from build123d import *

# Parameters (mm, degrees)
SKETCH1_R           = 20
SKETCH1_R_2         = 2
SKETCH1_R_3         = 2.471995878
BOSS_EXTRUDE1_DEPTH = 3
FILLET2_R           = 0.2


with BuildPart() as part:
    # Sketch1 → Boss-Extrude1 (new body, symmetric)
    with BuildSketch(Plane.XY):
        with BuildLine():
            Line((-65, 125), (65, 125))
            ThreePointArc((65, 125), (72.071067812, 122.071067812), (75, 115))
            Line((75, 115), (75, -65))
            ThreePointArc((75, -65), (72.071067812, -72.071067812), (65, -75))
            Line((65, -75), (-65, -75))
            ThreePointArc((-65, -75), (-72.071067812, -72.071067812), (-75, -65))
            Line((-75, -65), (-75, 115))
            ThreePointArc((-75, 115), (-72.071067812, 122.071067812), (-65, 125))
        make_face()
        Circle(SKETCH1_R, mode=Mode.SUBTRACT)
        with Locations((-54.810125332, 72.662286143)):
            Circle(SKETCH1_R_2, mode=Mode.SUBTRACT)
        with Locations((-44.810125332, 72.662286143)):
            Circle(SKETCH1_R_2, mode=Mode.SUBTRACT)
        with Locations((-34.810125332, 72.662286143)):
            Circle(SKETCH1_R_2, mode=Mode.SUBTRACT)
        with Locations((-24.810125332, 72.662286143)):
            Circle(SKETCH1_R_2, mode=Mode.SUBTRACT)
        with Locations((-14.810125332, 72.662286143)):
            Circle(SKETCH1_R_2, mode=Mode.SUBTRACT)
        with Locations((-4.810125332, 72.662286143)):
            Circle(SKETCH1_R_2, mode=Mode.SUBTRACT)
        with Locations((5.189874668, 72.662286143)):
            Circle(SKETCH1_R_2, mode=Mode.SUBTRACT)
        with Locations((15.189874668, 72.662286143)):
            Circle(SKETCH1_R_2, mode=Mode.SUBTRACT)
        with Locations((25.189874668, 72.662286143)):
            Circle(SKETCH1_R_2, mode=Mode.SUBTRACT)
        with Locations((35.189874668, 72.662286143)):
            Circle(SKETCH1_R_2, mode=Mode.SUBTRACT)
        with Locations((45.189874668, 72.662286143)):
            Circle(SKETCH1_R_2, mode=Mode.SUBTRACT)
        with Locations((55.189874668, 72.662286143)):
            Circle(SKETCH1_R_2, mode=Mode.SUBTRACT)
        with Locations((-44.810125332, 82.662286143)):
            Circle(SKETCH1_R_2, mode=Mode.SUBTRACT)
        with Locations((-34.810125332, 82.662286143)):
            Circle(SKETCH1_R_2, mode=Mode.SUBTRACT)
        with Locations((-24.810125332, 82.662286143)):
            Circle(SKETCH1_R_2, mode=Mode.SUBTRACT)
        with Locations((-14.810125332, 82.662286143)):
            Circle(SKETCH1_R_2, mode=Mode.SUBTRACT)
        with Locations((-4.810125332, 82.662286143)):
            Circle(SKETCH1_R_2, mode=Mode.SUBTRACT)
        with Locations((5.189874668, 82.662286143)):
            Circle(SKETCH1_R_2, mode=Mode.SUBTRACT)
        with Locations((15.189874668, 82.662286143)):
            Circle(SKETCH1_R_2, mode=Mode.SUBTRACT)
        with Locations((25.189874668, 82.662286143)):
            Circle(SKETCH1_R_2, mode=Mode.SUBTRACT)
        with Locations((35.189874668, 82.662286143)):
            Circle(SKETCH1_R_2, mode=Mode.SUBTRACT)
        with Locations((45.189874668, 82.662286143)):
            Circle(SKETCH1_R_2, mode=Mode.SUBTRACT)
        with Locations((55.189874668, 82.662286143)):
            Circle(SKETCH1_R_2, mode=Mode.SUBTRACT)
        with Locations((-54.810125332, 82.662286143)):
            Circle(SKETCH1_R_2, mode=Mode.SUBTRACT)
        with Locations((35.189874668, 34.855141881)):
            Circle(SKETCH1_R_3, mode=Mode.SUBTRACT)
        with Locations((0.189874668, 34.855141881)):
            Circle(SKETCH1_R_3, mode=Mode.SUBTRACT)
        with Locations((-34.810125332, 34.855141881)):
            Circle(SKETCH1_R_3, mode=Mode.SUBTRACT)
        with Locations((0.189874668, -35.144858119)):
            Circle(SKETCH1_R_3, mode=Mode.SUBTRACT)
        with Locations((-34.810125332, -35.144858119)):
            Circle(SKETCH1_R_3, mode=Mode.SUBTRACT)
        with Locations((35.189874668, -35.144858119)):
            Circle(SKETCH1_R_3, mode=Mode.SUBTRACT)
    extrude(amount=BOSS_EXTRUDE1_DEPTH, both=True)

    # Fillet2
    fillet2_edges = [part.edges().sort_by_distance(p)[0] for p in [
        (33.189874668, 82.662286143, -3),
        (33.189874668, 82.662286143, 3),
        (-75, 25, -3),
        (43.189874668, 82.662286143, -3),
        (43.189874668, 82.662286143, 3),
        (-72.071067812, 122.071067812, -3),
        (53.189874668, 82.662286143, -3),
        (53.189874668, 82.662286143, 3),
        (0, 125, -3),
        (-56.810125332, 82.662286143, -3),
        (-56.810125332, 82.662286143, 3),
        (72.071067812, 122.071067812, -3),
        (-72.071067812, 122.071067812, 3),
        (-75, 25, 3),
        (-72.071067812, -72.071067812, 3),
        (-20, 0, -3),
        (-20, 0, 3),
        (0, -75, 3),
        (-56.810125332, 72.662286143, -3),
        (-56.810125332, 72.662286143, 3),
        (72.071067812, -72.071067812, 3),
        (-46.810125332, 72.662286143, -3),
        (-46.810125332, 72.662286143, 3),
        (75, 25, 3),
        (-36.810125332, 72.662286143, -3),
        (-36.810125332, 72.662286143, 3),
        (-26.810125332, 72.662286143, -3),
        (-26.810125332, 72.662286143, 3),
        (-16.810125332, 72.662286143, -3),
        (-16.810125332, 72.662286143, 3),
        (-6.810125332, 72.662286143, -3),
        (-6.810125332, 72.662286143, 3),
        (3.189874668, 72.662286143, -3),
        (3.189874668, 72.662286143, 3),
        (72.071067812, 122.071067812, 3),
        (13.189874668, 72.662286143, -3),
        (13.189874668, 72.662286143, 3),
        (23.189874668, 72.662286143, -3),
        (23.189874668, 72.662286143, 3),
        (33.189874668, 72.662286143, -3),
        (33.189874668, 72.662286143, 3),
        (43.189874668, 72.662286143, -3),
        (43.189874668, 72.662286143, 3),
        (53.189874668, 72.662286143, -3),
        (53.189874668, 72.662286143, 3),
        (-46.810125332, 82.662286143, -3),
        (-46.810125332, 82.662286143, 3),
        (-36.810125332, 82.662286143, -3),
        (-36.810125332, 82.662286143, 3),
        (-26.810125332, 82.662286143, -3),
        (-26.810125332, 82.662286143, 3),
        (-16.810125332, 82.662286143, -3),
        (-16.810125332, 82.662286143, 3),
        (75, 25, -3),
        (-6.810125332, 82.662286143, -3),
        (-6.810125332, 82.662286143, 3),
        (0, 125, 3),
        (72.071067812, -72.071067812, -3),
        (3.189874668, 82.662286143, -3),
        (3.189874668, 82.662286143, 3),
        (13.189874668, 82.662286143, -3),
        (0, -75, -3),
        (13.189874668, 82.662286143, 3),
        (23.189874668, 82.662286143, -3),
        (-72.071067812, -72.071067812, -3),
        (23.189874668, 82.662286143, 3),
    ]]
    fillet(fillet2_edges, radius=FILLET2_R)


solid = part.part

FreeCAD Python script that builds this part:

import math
import FreeCAD as App
import Part
import Sketcher
from FreeCAD import Vector
Q = App.Units.Quantity


def edges_at(feature, points):
    """Names of the edges that pass closest to the given points."""
    edges = feature.Shape.Edges
    near = lambda p: min(range(len(edges)), key=lambda i: edges[i].distToShape(Part.Vertex(*p))[0])
    return sorted({f"Edge{near(p) + 1}" for p in points})

doc = App.newDocument("Part")
body = doc.addObject("PartDesign::Body", "Body")

# Sketch on XY plane
sketch1 = body.newObject("Sketcher::SketchObject", "Sketch")
sketch1.AttachmentSupport = (doc.getObject("XY_Plane"), [""])
sketch1.MapMode = "FlatFace"
sketch1.addGeometry(Part.LineSegment(Vector(65, 125, 0), Vector(-65, 125, 0)), False)
sketch1.addGeometry(Part.ArcOfCircle(Part.Circle(Vector(-65, 115, 0), Vector(0, 0, 1), 10), math.radians(90), math.radians(180)), False)
sketch1.addGeometry(Part.LineSegment(Vector(-75, 115, 0), Vector(-75, -65, 0)), False)
sketch1.addGeometry(Part.ArcOfCircle(Part.Circle(Vector(-65, -65, 0), Vector(0, 0, 1), 10), math.radians(180), math.radians(270)), False)
sketch1.addGeometry(Part.LineSegment(Vector(-65, -75, 0), Vector(65, -75, 0)), False)
sketch1.addGeometry(Part.ArcOfCircle(Part.Circle(Vector(65, -65, 0), Vector(0, 0, 1), 10), math.radians(-90), math.radians(0)), False)
sketch1.addGeometry(Part.LineSegment(Vector(75, -65, 0), Vector(75, 115, 0)), False)
sketch1.addGeometry(Part.ArcOfCircle(Part.Circle(Vector(65, 115, 0), Vector(0, 0, 1), 10), math.radians(0), math.radians(90)), False)
sketch1.addGeometry(Part.Circle(Vector(35.2, -35.1, 0), Vector(0, 0, 1), 2.5), False)
sketch1.addGeometry(Part.Circle(Vector(0.2, -35.1, 0), Vector(0, 0, 1), 2.5), False)
sketch1.addGeometry(Part.Circle(Vector(-34.8, -35.1, 0), Vector(0, 0, 1), 2.5), False)
sketch1.addGeometry(Part.Circle(Vector(0, 0, 0), Vector(0, 0, 1), 20), False)
sketch1.addGeometry(Part.Circle(Vector(35.2, 34.9, 0), Vector(0, 0, 1), 2.5), False)
sketch1.addGeometry(Part.Circle(Vector(55.2, 72.7, 0), Vector(0, 0, 1), 2), False)
sketch1.addGeometry(Part.Circle(Vector(45.2, 72.7, 0), Vector(0, 0, 1), 2), False)
sketch1.addGeometry(Part.Circle(Vector(55.2, 82.7, 0), Vector(0, 0, 1), 2), False)
sketch1.addGeometry(Part.Circle(Vector(45.2, 82.7, 0), Vector(0, 0, 1), 2), False)
sketch1.addGeometry(Part.Circle(Vector(35.2, 72.7, 0), Vector(0, 0, 1), 2), False)
sketch1.addGeometry(Part.Circle(Vector(35.2, 82.7, 0), Vector(0, 0, 1), 2), False)
sketch1.addGeometry(Part.Circle(Vector(25.2, 72.7, 0), Vector(0, 0, 1), 2), False)
sketch1.addGeometry(Part.Circle(Vector(15.2, 72.7, 0), Vector(0, 0, 1), 2), False)
sketch1.addGeometry(Part.Circle(Vector(25.2, 82.7, 0), Vector(0, 0, 1), 2), False)
sketch1.addGeometry(Part.Circle(Vector(15.2, 82.7, 0), Vector(0, 0, 1), 2), False)
sketch1.addGeometry(Part.Circle(Vector(5.2, 72.7, 0), Vector(0, 0, 1), 2), False)
sketch1.addGeometry(Part.Circle(Vector(5.2, 82.7, 0), Vector(0, 0, 1), 2), False)
sketch1.addGeometry(Part.Circle(Vector(0.2, 34.9, 0), Vector(0, 0, 1), 2.5), False)
sketch1.addGeometry(Part.Circle(Vector(-34.8, 34.9, 0), Vector(0, 0, 1), 2.5), False)
sketch1.addGeometry(Part.Circle(Vector(-4.8, 72.7, 0), Vector(0, 0, 1), 2), False)
sketch1.addGeometry(Part.Circle(Vector(-4.8, 82.7, 0), Vector(0, 0, 1), 2), False)
sketch1.addGeometry(Part.Circle(Vector(-14.8, 72.7, 0), Vector(0, 0, 1), 2), False)
sketch1.addGeometry(Part.Circle(Vector(-24.8, 72.7, 0), Vector(0, 0, 1), 2), False)
sketch1.addGeometry(Part.Circle(Vector(-14.8, 82.7, 0), Vector(0, 0, 1), 2), False)
sketch1.addGeometry(Part.Circle(Vector(-24.8, 82.7, 0), Vector(0, 0, 1), 2), False)
sketch1.addGeometry(Part.Circle(Vector(-34.8, 72.7, 0), Vector(0, 0, 1), 2), False)
sketch1.addGeometry(Part.Circle(Vector(-34.8, 82.7, 0), Vector(0, 0, 1), 2), False)
sketch1.addGeometry(Part.Circle(Vector(-44.8, 72.7, 0), Vector(0, 0, 1), 2), False)
sketch1.addGeometry(Part.Circle(Vector(-54.8, 72.7, 0), Vector(0, 0, 1), 2), False)
sketch1.addGeometry(Part.Circle(Vector(-44.8, 82.7, 0), Vector(0, 0, 1), 2), False)
sketch1.addGeometry(Part.Circle(Vector(-54.8, 82.7, 0), Vector(0, 0, 1), 2), False)
sketch1.addConstraint(Sketcher.Constraint("Tangent", 0, 2, 1, 1))
sketch1.addConstraint(Sketcher.Constraint("Tangent", 1, 2, 2, 1))
sketch1.addConstraint(Sketcher.Constraint("Tangent", 2, 2, 3, 1))
sketch1.addConstraint(Sketcher.Constraint("Tangent", 3, 2, 4, 1))
sketch1.addConstraint(Sketcher.Constraint("Tangent", 4, 2, 5, 1))
sketch1.addConstraint(Sketcher.Constraint("Tangent", 5, 2, 6, 1))
sketch1.addConstraint(Sketcher.Constraint("Tangent", 6, 2, 7, 1))
sketch1.addConstraint(Sketcher.Constraint("Tangent", 7, 2, 0, 1))
sketch1.addConstraint(Sketcher.Constraint("Horizontal", 0))
sketch1.addConstraint(Sketcher.Constraint("Vertical", 2))
sketch1.addConstraint(Sketcher.Constraint("Horizontal", 4))
sketch1.addConstraint(Sketcher.Constraint("Vertical", 6))
sketch1.addConstraint(Sketcher.Constraint("Coincident", 11, 3, -1, 1))
sketch1.addConstraint(Sketcher.Constraint("Equal", 1, 3))
sketch1.addConstraint(Sketcher.Constraint("Equal", 3, 5))
sketch1.addConstraint(Sketcher.Constraint("Equal", 5, 7))
sketch1.addConstraint(Sketcher.Constraint("Equal", 8, 9))
sketch1.addConstraint(Sketcher.Constraint("Equal", 9, 10))
sketch1.addConstraint(Sketcher.Constraint("Equal", 10, 12))
sketch1.addConstraint(Sketcher.Constraint("Equal", 13, 14))
sketch1.addConstraint(Sketcher.Constraint("Equal", 14, 15))
sketch1.addConstraint(Sketcher.Constraint("Equal", 15, 16))
sketch1.addConstraint(Sketcher.Constraint("Equal", 16, 17))
sketch1.addConstraint(Sketcher.Constraint("Equal", 17, 18))
sketch1.addConstraint(Sketcher.Constraint("Equal", 18, 19))
sketch1.addConstraint(Sketcher.Constraint("Equal", 19, 20))
sketch1.addConstraint(Sketcher.Constraint("Equal", 20, 21))
sketch1.addConstraint(Sketcher.Constraint("Equal", 21, 22))
sketch1.addConstraint(Sketcher.Constraint("Equal", 22, 23))
sketch1.addConstraint(Sketcher.Constraint("Equal", 23, 24))
sketch1.addConstraint(Sketcher.Constraint("Equal", 12, 25))
sketch1.addConstraint(Sketcher.Constraint("Equal", 25, 26))
sketch1.addConstraint(Sketcher.Constraint("Equal", 24, 27))
sketch1.addConstraint(Sketcher.Constraint("Equal", 27, 28))
sketch1.addConstraint(Sketcher.Constraint("Equal", 28, 29))
sketch1.addConstraint(Sketcher.Constraint("Equal", 29, 30))
sketch1.addConstraint(Sketcher.Constraint("Equal", 30, 31))
sketch1.addConstraint(Sketcher.Constraint("Equal", 31, 32))
sketch1.addConstraint(Sketcher.Constraint("Equal", 32, 33))
sketch1.addConstraint(Sketcher.Constraint("Equal", 33, 34))
sketch1.addConstraint(Sketcher.Constraint("Equal", 34, 35))
sketch1.addConstraint(Sketcher.Constraint("Equal", 35, 36))
sketch1.addConstraint(Sketcher.Constraint("Equal", 36, 37))
sketch1.addConstraint(Sketcher.Constraint("Equal", 37, 38))
sketch1.addConstraint(Sketcher.Constraint("Horizontal", 8, 3, 9, 3))
sketch1.addConstraint(Sketcher.Constraint("Horizontal", 9, 3, 10, 3))
sketch1.addConstraint(Sketcher.Constraint("Horizontal", 13, 3, 14, 3))
sketch1.addConstraint(Sketcher.Constraint("Horizontal", 15, 3, 16, 3))
sketch1.addConstraint(Sketcher.Constraint("Horizontal", 14, 3, 17, 3))
sketch1.addConstraint(Sketcher.Constraint("Horizontal", 16, 3, 18, 3))
sketch1.addConstraint(Sketcher.Constraint("Horizontal", 17, 3, 19, 3))
sketch1.addConstraint(Sketcher.Constraint("Horizontal", 19, 3, 20, 3))
sketch1.addConstraint(Sketcher.Constraint("Horizontal", 18, 3, 21, 3))
sketch1.addConstraint(Sketcher.Constraint("Horizontal", 21, 3, 22, 3))
sketch1.addConstraint(Sketcher.Constraint("Horizontal", 20, 3, 23, 3))
sketch1.addConstraint(Sketcher.Constraint("Horizontal", 22, 3, 24, 3))
sketch1.addConstraint(Sketcher.Constraint("Horizontal", 12, 3, 25, 3))
sketch1.addConstraint(Sketcher.Constraint("Horizontal", 25, 3, 26, 3))
sketch1.addConstraint(Sketcher.Constraint("Horizontal", 23, 3, 27, 3))
sketch1.addConstraint(Sketcher.Constraint("Horizontal", 24, 3, 28, 3))
sketch1.addConstraint(Sketcher.Constraint("Horizontal", 27, 3, 29, 3))
sketch1.addConstraint(Sketcher.Constraint("Horizontal", 29, 3, 30, 3))
sketch1.addConstraint(Sketcher.Constraint("Horizontal", 28, 3, 31, 3))
sketch1.addConstraint(Sketcher.Constraint("Horizontal", 31, 3, 32, 3))
sketch1.addConstraint(Sketcher.Constraint("Horizontal", 30, 3, 33, 3))
sketch1.addConstraint(Sketcher.Constraint("Horizontal", 32, 3, 34, 3))
sketch1.addConstraint(Sketcher.Constraint("Horizontal", 33, 3, 35, 3))
sketch1.addConstraint(Sketcher.Constraint("Horizontal", 35, 3, 36, 3))
sketch1.addConstraint(Sketcher.Constraint("Horizontal", 34, 3, 37, 3))
sketch1.addConstraint(Sketcher.Constraint("Horizontal", 37, 3, 38, 3))
sketch1.addConstraint(Sketcher.Constraint("Vertical", 8, 3, 12, 3))
sketch1.addConstraint(Sketcher.Constraint("Vertical", 13, 3, 15, 3))
sketch1.addConstraint(Sketcher.Constraint("Vertical", 14, 3, 16, 3))
sketch1.addConstraint(Sketcher.Constraint("Vertical", 12, 3, 17, 3))
sketch1.addConstraint(Sketcher.Constraint("Vertical", 17, 3, 18, 3))
sketch1.addConstraint(Sketcher.Constraint("Vertical", 19, 3, 21, 3))
sketch1.addConstraint(Sketcher.Constraint("Vertical", 20, 3, 22, 3))
sketch1.addConstraint(Sketcher.Constraint("Vertical", 23, 3, 24, 3))
sketch1.addConstraint(Sketcher.Constraint("Vertical", 9, 3, 25, 3))
sketch1.addConstraint(Sketcher.Constraint("Vertical", 10, 3, 26, 3))
sketch1.addConstraint(Sketcher.Constraint("Vertical", 27, 3, 28, 3))
sketch1.addConstraint(Sketcher.Constraint("Vertical", 29, 3, 31, 3))
sketch1.addConstraint(Sketcher.Constraint("Vertical", 30, 3, 32, 3))
sketch1.addConstraint(Sketcher.Constraint("Vertical", 26, 3, 33, 3))
sketch1.addConstraint(Sketcher.Constraint("Vertical", 33, 3, 34, 3))
sketch1.addConstraint(Sketcher.Constraint("Vertical", 35, 3, 37, 3))
sketch1.addConstraint(Sketcher.Constraint("Vertical", 36, 3, 38, 3))
sketch1.addConstraint(Sketcher.Constraint("Diameter", 11, Q("40 mm")))
sketch1.addConstraint(Sketcher.Constraint("Diameter", 13, Q("4 mm")))
sketch1.addConstraint(Sketcher.Constraint("Radius", 1, Q("10 mm")))
sketch1.addConstraint(Sketcher.Constraint("DistanceX", 0, 2, 0, 1, Q("130 mm")))
sketch1.addConstraint(Sketcher.Constraint("DistanceY", 2, 2, 2, 1, Q("180 mm")))
sketch1.addConstraint(Sketcher.Constraint("DistanceX", 1, 3, -1, 1, Q("65 mm")))
sketch1.addConstraint(Sketcher.Constraint("DistanceY", -1, 1, 1, 3, Q("115 mm")))
sketch1.addConstraint(Sketcher.Constraint("DistanceX", 9, 3, 8, 3, Q("35 mm")))
sketch1.addConstraint(Sketcher.Constraint("DistanceX", 10, 3, 9, 3, Q("35 mm")))
sketch1.addConstraint(Sketcher.Constraint("DistanceY", 8, 3, 12, 3, Q("70 mm")))
sketch1.addConstraint(Sketcher.Constraint("DistanceX", 12, 3, 13, 3, Q("20 mm")))
sketch1.addConstraint(Sketcher.Constraint("DistanceX", 14, 3, 13, 3, Q("10 mm")))
sketch1.addConstraint(Sketcher.Constraint("DistanceY", 13, 3, 15, 3, Q("10 mm")))
sketch1.addConstraint(Sketcher.Constraint("DistanceX", 19, 3, 17, 3, Q("10 mm")))
sketch1.addConstraint(Sketcher.Constraint("DistanceX", 20, 3, 19, 3, Q("10 mm")))
sketch1.addConstraint(Sketcher.Constraint("DistanceX", 23, 3, 20, 3, Q("10 mm")))
sketch1.addConstraint(Sketcher.Constraint("DistanceX", 27, 3, 23, 3, Q("10 mm")))
sketch1.addConstraint(Sketcher.Constraint("DistanceX", 29, 3, 27, 3, Q("10 mm")))
sketch1.addConstraint(Sketcher.Constraint("DistanceX", 30, 3, 29, 3, Q("10 mm")))
sketch1.addConstraint(Sketcher.Constraint("DistanceX", 35, 3, 33, 3, Q("10 mm")))
sketch1.addConstraint(Sketcher.Constraint("DistanceX", 36, 3, 35, 3, Q("10 mm")))
sketch1.addConstraint(Sketcher.Constraint("Diameter", 8, Q("4.943992 mm")))
sketch1.addConstraint(Sketcher.Constraint("DistanceY", 8, 3, -1, 1, Q("35.144858 mm")))
sketch1.addConstraint(Sketcher.Constraint("DistanceX", -1, 1, 8, 3, Q("35.189875 mm")))
sketch1.addConstraint(Sketcher.Constraint("DistanceY", -1, 1, 13, 3, Q("72.662286 mm")))
pad1 = body.newObject("PartDesign::Pad", "Pad")
pad1.Profile = sketch1
pad1.Length = 6
pad1.Midplane = True
doc.recompute()

fillet = body.newObject("PartDesign::Fillet", "Fillet")
fillet.Base = (pad1, edges_at(pad1, [
    (33.19, 82.662, -3),
    (33.19, 82.662, 3),
    (-75, 25, -3),
    (43.19, 82.662, -3),
    (43.19, 82.662, 3),
    (-72.071, 122.071, -3),
    (53.19, 82.662, -3),
    (53.19, 82.662, 3),
    (0, 125, -3),
    (-56.81, 82.662, -3),
    (-56.81, 82.662, 3),
    (72.071, 122.071, -3),
    (-72.071, 122.071, 3),
    (-75, 25, 3),
    (-72.071, -72.071, 3),
    (-20, 0, -3),
    (-20, 0, 3),
    (0, -75, 3),
    (-56.81, 72.662, -3),
    (-56.81, 72.662, 3),
    (72.071, -72.071, 3),
    (-46.81, 72.662, -3),
    (-46.81, 72.662, 3),
    (75, 25, 3),
    (-36.81, 72.662, -3),
    (-36.81, 72.662, 3),
    (-26.81, 72.662, -3),
    (-26.81, 72.662, 3),
    (-16.81, 72.662, -3),
    (-16.81, 72.662, 3),
    (-6.81, 72.662, -3),
    (-6.81, 72.662, 3),
    (3.19, 72.662, -3),
    (3.19, 72.662, 3),
    (72.071, 122.071, 3),
    (13.19, 72.662, -3),
    (13.19, 72.662, 3),
    (23.19, 72.662, -3),
    (23.19, 72.662, 3),
    (33.19, 72.662, -3),
    (33.19, 72.662, 3),
    (43.19, 72.662, -3),
    (43.19, 72.662, 3),
    (53.19, 72.662, -3),
    (53.19, 72.662, 3),
    (-46.81, 82.662, -3),
    (-46.81, 82.662, 3),
    (-36.81, 82.662, -3),
    (-36.81, 82.662, 3),
    (-26.81, 82.662, -3),
    (-26.81, 82.662, 3),
    (-16.81, 82.662, -3),
    (-16.81, 82.662, 3),
    (75, 25, -3),
    (-6.81, 82.662, -3),
    (-6.81, 82.662, 3),
    (0, 125, 3),
    (72.071, -72.071, -3),
    (3.19, 82.662, -3),
    (3.19, 82.662, 3),
    (13.19, 82.662, -3),
    (0, -75, -3),
    (13.19, 82.662, 3),
    (23.19, 82.662, -3),
    (-72.071, -72.071, -3),
    (23.19, 82.662, 3),
]))
fillet.Radius = 0.2

doc.recompute()
